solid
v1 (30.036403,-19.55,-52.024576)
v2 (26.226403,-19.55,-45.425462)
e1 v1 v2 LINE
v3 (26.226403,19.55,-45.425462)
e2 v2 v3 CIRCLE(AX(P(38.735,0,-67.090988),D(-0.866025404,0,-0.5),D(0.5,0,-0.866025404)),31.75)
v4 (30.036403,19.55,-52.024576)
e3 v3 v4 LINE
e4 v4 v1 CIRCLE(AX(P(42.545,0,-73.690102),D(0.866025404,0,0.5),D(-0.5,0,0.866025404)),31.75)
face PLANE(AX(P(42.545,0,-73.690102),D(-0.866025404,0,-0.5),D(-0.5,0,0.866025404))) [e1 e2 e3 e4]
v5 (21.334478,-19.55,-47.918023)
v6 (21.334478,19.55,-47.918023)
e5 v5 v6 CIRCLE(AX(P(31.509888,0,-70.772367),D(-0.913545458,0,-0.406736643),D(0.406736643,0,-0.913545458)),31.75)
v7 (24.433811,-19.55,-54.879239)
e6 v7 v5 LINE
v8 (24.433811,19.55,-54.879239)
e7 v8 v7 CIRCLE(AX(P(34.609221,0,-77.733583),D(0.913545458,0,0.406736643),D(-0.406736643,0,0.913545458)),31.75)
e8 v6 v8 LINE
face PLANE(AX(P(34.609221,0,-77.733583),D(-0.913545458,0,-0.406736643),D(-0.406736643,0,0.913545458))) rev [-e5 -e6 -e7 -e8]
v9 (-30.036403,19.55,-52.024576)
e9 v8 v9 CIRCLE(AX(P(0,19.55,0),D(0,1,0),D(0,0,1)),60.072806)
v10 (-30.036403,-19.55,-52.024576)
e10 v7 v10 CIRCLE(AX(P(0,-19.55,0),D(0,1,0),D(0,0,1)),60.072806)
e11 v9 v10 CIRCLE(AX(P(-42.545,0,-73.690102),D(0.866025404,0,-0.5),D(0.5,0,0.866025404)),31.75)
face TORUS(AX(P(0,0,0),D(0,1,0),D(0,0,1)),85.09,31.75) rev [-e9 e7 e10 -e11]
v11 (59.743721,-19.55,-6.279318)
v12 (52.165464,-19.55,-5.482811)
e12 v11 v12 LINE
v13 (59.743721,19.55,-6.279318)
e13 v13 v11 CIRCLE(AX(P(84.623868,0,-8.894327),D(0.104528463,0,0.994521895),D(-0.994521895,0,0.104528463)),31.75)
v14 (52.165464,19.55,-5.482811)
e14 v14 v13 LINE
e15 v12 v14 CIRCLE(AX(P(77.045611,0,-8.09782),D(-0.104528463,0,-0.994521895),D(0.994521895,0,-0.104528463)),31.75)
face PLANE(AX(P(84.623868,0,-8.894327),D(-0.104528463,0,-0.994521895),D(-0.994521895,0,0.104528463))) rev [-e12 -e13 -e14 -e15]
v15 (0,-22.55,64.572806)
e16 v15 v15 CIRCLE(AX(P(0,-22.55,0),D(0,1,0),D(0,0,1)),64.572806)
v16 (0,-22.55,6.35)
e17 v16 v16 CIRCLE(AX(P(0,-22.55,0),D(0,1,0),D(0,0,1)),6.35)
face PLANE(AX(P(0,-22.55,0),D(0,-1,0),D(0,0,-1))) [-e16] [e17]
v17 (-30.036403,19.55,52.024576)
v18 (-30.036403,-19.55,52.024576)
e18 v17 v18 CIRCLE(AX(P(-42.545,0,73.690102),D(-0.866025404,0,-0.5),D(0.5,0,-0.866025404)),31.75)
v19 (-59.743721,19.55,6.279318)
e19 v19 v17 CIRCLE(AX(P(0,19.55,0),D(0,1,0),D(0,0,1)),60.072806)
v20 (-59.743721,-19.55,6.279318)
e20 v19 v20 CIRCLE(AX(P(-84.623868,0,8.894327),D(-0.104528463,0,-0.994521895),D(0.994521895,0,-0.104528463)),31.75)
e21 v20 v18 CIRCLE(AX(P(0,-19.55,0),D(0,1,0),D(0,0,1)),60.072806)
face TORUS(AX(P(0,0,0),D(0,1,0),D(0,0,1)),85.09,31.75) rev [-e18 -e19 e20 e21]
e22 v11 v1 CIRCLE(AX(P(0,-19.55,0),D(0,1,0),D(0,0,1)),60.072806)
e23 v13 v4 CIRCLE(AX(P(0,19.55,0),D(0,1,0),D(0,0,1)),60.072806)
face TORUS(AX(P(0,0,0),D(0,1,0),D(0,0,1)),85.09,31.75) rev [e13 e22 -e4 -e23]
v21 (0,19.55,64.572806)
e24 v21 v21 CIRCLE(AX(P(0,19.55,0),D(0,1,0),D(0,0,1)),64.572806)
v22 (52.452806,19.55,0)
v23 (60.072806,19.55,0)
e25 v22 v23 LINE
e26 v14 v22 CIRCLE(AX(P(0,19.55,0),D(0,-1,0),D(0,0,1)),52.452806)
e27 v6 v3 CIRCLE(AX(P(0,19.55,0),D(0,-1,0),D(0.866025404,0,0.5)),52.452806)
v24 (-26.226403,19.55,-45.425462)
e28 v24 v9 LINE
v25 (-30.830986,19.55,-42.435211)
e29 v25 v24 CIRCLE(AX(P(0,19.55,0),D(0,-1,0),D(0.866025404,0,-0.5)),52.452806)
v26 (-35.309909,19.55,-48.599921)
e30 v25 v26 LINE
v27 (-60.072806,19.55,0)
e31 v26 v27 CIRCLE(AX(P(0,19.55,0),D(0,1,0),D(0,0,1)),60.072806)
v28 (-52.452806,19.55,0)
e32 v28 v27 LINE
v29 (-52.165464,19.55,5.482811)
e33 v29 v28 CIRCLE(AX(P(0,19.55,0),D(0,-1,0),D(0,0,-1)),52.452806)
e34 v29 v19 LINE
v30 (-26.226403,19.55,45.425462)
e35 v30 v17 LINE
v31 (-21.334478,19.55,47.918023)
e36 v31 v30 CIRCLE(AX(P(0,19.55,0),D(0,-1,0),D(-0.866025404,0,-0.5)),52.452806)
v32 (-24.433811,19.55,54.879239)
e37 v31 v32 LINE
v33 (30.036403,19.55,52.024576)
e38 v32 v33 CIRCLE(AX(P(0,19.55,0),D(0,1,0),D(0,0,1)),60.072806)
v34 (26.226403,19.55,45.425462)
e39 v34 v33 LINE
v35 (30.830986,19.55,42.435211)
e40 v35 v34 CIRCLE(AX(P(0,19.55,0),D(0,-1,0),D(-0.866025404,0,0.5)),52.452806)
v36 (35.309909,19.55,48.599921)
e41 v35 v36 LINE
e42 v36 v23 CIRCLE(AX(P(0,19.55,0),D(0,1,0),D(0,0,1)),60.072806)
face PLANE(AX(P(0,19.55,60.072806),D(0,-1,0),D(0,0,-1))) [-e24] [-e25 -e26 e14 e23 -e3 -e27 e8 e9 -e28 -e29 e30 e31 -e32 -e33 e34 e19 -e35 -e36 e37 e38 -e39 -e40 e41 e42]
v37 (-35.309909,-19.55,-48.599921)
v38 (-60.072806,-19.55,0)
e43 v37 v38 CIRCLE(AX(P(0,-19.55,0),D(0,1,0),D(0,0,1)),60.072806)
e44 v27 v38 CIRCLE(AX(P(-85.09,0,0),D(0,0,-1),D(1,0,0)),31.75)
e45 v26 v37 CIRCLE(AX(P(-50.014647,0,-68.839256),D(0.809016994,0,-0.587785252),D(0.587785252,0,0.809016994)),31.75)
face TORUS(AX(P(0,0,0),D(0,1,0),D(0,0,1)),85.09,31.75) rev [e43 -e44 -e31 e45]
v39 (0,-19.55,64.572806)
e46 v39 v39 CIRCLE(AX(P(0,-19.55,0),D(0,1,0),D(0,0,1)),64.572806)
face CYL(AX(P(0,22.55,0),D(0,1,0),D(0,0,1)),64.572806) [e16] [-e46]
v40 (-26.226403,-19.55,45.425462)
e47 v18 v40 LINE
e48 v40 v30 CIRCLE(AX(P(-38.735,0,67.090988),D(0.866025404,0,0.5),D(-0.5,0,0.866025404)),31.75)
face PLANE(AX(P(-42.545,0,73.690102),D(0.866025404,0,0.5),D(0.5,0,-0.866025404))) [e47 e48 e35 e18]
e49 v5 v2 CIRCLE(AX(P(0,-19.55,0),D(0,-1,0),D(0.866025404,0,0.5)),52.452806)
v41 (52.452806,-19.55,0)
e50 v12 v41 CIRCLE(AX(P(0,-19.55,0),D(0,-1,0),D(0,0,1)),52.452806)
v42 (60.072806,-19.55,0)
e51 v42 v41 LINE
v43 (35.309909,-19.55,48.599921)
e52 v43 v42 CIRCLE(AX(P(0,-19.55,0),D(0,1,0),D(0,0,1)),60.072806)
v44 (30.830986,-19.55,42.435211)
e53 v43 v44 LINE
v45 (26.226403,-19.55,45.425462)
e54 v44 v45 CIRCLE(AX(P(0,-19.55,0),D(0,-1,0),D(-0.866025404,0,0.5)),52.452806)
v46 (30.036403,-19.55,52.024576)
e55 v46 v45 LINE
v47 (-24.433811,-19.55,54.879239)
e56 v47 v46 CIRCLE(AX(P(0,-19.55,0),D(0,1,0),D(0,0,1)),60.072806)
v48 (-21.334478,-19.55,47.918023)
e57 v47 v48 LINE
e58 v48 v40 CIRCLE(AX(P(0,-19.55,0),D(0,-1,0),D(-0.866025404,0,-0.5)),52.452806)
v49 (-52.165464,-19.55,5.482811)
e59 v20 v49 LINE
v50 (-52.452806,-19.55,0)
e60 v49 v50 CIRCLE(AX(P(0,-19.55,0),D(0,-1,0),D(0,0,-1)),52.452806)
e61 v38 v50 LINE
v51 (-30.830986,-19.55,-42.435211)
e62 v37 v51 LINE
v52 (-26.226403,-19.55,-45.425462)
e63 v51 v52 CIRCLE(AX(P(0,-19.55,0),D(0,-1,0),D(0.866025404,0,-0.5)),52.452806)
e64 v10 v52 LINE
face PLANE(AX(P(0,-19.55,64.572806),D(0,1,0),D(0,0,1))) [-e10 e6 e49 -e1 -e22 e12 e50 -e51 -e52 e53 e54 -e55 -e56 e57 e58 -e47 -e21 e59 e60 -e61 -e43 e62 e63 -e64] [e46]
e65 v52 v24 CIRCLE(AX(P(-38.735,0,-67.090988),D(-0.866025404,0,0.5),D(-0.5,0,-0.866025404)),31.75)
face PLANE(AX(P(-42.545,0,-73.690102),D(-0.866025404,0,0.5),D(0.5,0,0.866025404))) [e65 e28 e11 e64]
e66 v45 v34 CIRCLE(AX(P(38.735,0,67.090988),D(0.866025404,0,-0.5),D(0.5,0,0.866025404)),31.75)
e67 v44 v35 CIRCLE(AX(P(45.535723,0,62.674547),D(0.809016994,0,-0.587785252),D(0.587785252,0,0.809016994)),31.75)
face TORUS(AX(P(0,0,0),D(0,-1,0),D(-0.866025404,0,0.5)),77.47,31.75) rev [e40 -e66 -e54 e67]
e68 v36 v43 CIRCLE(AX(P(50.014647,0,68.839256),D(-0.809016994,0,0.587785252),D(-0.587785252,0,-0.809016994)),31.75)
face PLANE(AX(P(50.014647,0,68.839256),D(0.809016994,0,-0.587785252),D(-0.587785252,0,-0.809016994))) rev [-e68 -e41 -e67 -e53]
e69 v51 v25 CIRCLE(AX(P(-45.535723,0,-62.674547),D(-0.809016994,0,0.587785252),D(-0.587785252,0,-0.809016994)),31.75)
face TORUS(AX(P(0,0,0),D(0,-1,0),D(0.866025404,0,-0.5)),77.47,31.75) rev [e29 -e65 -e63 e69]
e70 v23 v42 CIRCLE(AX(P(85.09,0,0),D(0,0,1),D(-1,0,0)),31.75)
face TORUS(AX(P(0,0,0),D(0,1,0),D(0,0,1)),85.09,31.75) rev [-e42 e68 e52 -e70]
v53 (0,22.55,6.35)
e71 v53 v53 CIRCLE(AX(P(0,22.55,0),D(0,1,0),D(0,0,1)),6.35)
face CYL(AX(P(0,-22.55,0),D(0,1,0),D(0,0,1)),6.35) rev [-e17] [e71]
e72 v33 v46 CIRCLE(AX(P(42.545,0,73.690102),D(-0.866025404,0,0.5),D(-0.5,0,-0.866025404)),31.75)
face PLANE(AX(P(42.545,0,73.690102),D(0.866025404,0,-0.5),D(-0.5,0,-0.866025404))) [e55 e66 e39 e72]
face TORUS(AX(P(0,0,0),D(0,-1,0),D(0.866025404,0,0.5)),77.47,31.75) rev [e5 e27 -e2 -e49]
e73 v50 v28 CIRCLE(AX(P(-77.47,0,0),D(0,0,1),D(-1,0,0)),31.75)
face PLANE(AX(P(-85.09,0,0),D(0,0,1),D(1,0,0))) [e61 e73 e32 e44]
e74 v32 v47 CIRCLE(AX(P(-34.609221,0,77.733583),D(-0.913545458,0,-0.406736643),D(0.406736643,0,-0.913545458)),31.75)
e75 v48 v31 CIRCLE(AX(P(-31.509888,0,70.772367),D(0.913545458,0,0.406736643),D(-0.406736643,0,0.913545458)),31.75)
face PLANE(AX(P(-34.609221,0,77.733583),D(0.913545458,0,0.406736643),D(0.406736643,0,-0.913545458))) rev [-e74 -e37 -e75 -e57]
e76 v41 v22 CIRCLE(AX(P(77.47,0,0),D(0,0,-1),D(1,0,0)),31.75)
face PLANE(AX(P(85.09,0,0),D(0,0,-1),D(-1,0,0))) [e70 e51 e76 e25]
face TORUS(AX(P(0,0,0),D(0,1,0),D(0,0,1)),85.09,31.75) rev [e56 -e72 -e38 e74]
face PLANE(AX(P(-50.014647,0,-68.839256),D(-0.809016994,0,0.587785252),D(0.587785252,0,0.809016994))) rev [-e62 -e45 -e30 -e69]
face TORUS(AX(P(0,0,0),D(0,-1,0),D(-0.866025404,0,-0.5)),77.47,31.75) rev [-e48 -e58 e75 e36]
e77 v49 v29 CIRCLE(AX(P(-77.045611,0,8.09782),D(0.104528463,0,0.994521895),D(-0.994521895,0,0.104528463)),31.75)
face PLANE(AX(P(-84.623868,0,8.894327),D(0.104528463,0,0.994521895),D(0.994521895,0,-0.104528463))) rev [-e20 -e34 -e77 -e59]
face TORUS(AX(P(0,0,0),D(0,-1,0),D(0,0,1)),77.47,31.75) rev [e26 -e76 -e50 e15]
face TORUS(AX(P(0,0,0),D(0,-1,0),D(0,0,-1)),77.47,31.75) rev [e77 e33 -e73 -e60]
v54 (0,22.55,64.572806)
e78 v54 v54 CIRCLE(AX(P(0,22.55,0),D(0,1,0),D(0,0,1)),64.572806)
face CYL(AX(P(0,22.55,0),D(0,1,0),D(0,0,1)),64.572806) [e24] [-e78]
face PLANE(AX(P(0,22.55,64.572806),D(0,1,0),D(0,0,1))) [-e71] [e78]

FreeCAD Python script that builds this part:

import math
import FreeCAD as App
import Part
import Sketcher

V = App.Vector
Q = App.Units.Quantity

doc = App.newDocument("Part")
params = doc.addObject("Spreadsheet::Sheet", "Params")
for row, (alias, value) in enumerate([
    ("sketch1_width", "3 mm"),
    ("sketch1_radius", "31.75 mm"),
    ("sketch1_width2", "45.1 mm"),
    ("sketch1_height", "4.5 mm"),
    ("revolution_angle", "360 deg"),
    ("sketch2_diameter", "12.7 mm"),
    ("sketch3_radius", "31.75 mm"),
    ("sketch3_width", "7.62 mm"),
    ("groove_angle", "6 deg"),
], start=1):
    params.set(f"A{row}", alias)
    params.set(f"B{row}", "=" + value)
    params.setAlias(f"B{row}", alias)

body = doc.addObject("PartDesign::Body", "Body")

# Sketch on YZ plane
sketch1 = body.newObject("Sketcher::SketchObject", "Sketch")
sketch1.AttachmentSupport = (doc.getObject("YZ_Plane"), [""])
sketch1.MapMode = "FlatFace"
sketch1.addGeometry(Part.LineSegment(V(19.6, 64.6, 0), V(19.6, 60.1, 0)), False)
sketch1.addGeometry(Part.ArcOfCircle(Part.Circle(V(0, 85.1, 0), V(0, 0, 1), 31.7), math.radians(-128), math.radians(-52)), False)
sketch1.addGeometry(Part.LineSegment(V(-19.6, 60.1, 0), V(-19.6, 64.6, 0)), False)
sketch1.addGeometry(Part.LineSegment(V(-19.6, 64.6, 0), V(-22.6, 64.6, 0)), False)
sketch1.addGeometry(Part.LineSegment(V(-22.6, 64.6, 0), V(-22.6, 0, 0)), False)
sketch1.addGeometry(Part.LineSegment(V(-22.6, 0, 0), V(22.6, 0, 0)), False)
sketch1.addGeometry(Part.LineSegment(V(22.6, 0, 0), V(22.6, 64.6, 0)), False)
sketch1.addGeometry(Part.LineSegment(V(22.6, 64.6, 0), V(19.6, 64.6, 0)), False)
sketch1.addConstraint(Sketcher.Constraint("Coincident", 0, 2, 1, 2))
sketch1.addConstraint(Sketcher.Constraint("Coincident", 1, 1, 2, 1))
sketch1.addConstraint(Sketcher.Constraint("Coincident", 2, 2, 3, 1))
sketch1.addConstraint(Sketcher.Constraint("Coincident", 3, 2, 4, 1))
sketch1.addConstraint(Sketcher.Constraint("Coincident", 4, 2, 5, 1))
sketch1.addConstraint(Sketcher.Constraint("Coincident", 5, 2, 6, 1))
sketch1.addConstraint(Sketcher.Constraint("Coincident", 6, 2, 7, 1))
sketch1.addConstraint(Sketcher.Constraint("Coincident", 7, 2, 0, 1))
sketch1.addConstraint(Sketcher.Constraint("Vertical", 0))
sketch1.addConstraint(Sketcher.Constraint("Vertical", 2))
sketch1.addConstraint(Sketcher.Constraint("Horizontal", 3))
sketch1.addConstraint(Sketcher.Constraint("Vertical", 4))
sketch1.addConstraint(Sketcher.Constraint("Horizontal", 5))
sketch1.addConstraint(Sketcher.Constraint("Vertical", 6))
sketch1.addConstraint(Sketcher.Constraint("Horizontal", 7))
sketch1.addConstraint(Sketcher.Constraint("Symmetric", 4, 2, 5, 2, -1, 1))
sketch1.addConstraint(Sketcher.Constraint("Symmetric", 0, 2, 1, 1, -2))
sketch1.addConstraint(Sketcher.Constraint("Horizontal", 3, 2, 6, 2))
sketch1.addConstraint(Sketcher.Constraint("DistanceX", 3, 2, 3, 1, Q("3 mm")))
sketch1.addConstraint(Sketcher.Constraint("Radius", 1, Q("31.75 mm")))
sketch1.addConstraint(Sketcher.Constraint("DistanceX", 5, 1, 5, 2, Q("45.1 mm")))
sketch1.addConstraint(Sketcher.Constraint("DistanceY", 0, 2, 0, 1, Q("4.5 mm")))
sketch1.addConstraint(Sketcher.Constraint("DistanceY", -1, 1, 1, 3, Q("85.09 mm")))
sketch1.setExpression("Constraints[18]", "Params.sketch1_width")
sketch1.setExpression("Constraints[19]", "Params.sketch1_radius")
sketch1.setExpression("Constraints[20]", "Params.sketch1_width2")
sketch1.setExpression("Constraints[21]", "Params.sketch1_height")
revolution = body.newObject("PartDesign::Revolution", "Revolution")
revolution.Profile = sketch1
revolution.ReferenceAxis = (sketch1, ["H_Axis"])
revolution.setExpression("Angle", "Params.revolution_angle")

# Sketch on XZ plane
sketch2 = body.newObject("Sketcher::SketchObject", "Sketch001")
sketch2.AttachmentSupport = (doc.getObject("XZ_Plane"), [""])
sketch2.MapMode = "FlatFace"
sketch2.AttachmentOffset = App.Placement(V(0, 0, -22.55), App.Rotation())
sketch2.addGeometry(Part.Circle(V(0, 0, 0), V(0, 0, 1), 6), False)
sketch2.addConstraint(Sketcher.Constraint("Coincident", 0, 3, -1, 1))
sketch2.addConstraint(Sketcher.Constraint("Diameter", 0, Q("12.7 mm")))
sketch2.setExpression("Constraints[1]", "Params.sketch2_diameter")
pocket1 = body.newObject("PartDesign::Pocket", "Pocket")
pocket1.Profile = sketch2
pocket1.Type = "ThroughAll"
pocket1.Reversed = True

# Sketch on XY plane
sketch3 = body.newObject("Sketcher::SketchObject", "Sketch002")
sketch3.AttachmentSupport = (doc.getObject("XY_Plane"), [""])
sketch3.MapMode = "FlatFace"
sketch3.addGeometry(Part.LineSegment(V(-52, 20, 0), V(-60, 20, 0)), False)
sketch3.addGeometry(Part.ArcOfCircle(Part.Circle(V(-85, 0, 0), V(0, 0, 1), 32), math.radians(-38), math.radians(38)), False)
sketch3.addGeometry(Part.LineSegment(V(-60, -20, 0), V(-52, -20, 0)), False)
sketch3.addGeometry(Part.ArcOfCircle(Part.Circle(V(-77, 0, 0), V(0, 0, 1), 32), math.radians(-38), math.radians(38)), False)
sketch3.addConstraint(Sketcher.Constraint("Coincident", 0, 2, 1, 2))
sketch3.addConstraint(Sketcher.Constraint("Coincident", 1, 1, 2, 1))
sketch3.addConstraint(Sketcher.Constraint("Coincident", 2, 2, 3, 1))
sketch3.addConstraint(Sketcher.Constraint("Coincident", 3, 2, 0, 1))
sketch3.addConstraint(Sketcher.Constraint("Horizontal", 0))
sketch3.addConstraint(Sketcher.Constraint("Horizontal", 2))
sketch3.addConstraint(Sketcher.Constraint("Equal", 1, 3))
sketch3.addConstraint(Sketcher.Constraint("Symmetric", 0, 2, 1, 1, -1))
sketch3.addConstraint(Sketcher.Constraint("PointOnObject", 3, 3, -1))
sketch3.addConstraint(Sketcher.Constraint("Radius", 1, Q("31.75 mm")))
sketch3.addConstraint(Sketcher.Constraint("DistanceX", 0, 2, 0, 1, Q("7.62 mm")))
sketch3.addConstraint(Sketcher.Constraint("DistanceY", 1, 1, 0, 2, Q("39.1 mm")))
sketch3.addConstraint(Sketcher.Constraint("DistanceX", 1, 3, -1, 1, Q("85.09 mm")))
sketch3.setExpression("Constraints[9]", "Params.sketch3_radius")
sketch3.setExpression("Constraints[10]", "Params.sketch3_width")
groove = body.newObject("PartDesign::Groove", "Groove")
groove.Profile = sketch3
groove.ReferenceAxis = (sketch3, ["V_Axis"])
groove.setExpression("Angle", "Params.groove_angle")
doc.recompute()

polarpattern = body.newObject("PartDesign::PolarPattern", "PolarPattern")
polarpattern.Originals = [groove]
polarpattern.Axis = (doc.getObject("Y_Axis"), [""])
polarpattern.Angle = 360
polarpattern.Occurrences = 6
body.Tip = polarpattern

doc.recompute()
